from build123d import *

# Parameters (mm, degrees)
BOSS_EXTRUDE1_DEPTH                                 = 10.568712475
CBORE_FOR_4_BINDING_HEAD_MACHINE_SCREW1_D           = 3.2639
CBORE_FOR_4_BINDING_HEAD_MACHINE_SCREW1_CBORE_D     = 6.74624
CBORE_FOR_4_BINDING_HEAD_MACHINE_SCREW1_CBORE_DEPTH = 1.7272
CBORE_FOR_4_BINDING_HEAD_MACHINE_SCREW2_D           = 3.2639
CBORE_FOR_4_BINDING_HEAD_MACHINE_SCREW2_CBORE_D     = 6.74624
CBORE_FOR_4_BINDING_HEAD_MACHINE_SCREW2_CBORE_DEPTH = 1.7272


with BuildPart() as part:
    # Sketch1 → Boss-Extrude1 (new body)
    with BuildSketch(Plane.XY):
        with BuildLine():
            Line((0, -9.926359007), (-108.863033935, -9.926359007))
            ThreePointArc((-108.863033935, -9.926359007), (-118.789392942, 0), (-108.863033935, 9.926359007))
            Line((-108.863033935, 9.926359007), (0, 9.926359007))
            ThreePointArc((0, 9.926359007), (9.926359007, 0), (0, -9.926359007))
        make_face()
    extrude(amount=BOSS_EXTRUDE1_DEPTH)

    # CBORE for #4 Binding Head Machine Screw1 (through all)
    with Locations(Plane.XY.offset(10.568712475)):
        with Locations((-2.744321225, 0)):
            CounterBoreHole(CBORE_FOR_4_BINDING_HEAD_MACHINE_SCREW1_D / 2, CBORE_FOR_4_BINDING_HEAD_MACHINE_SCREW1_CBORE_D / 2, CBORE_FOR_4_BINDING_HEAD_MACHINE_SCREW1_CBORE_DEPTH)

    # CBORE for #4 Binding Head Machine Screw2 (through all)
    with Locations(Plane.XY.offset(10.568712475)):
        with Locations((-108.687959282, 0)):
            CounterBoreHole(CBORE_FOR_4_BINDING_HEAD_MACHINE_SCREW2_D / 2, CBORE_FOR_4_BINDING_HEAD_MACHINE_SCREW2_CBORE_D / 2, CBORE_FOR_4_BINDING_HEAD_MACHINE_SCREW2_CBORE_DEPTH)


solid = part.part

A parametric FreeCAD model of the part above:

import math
import FreeCAD as App
import Part
import Sketcher
Q = App.Units.Quantity

doc = App.newDocument("Part")
body = doc.addObject("PartDesign::Body", "Body")

# Sketch on XY plane
sketch1 = body.newObject("Sketcher::SketchObject", "Sketch")
sketch1.AttachmentSupport = (doc.getObject("XY_Plane"), [""])
sketch1.MapMode = "FlatFace"
sketch1.addGeometry(Part.LineSegment(App.Vector(-108.863034, -9.926359, 0), App.Vector(0, -9.926359, 0)), False)
sketch1.addGeometry(Part.ArcOfCircle(Part.Circle(App.Vector(0, 0, 0), App.Vector(0, 0, 1), 9.926359), math.radians(-90), math.radians(90)), False)
sketch1.addGeometry(Part.LineSegment(App.Vector(0, 9.926359, 0), App.Vector(-108.863034, 9.926359, 0)), False)
sketch1.addGeometry(Part.ArcOfCircle(Part.Circle(App.Vector(-108.863034, 0, 0), App.Vector(0, 0, 1), 9.926359), math.radians(90), math.radians(270)), False)
sketch1.addConstraint(Sketcher.Constraint("Tangent", 0, 2, 1, 1))
sketch1.addConstraint(Sketcher.Constraint("Tangent", 1, 2, 2, 1))
sketch1.addConstraint(Sketcher.Constraint("Tangent", 2, 2, 3, 1))
sketch1.addConstraint(Sketcher.Constraint("Tangent", 3, 2, 0, 1))
sketch1.addConstraint(Sketcher.Constraint("Horizontal", 0))
sketch1.addConstraint(Sketcher.Constraint("Horizontal", 2))
sketch1.addConstraint(Sketcher.Constraint("Coincident", 1, 3, -1, 1))
sketch1.addConstraint(Sketcher.Constraint("Radius", 1, Q("9.926359 mm")))
sketch1.addConstraint(Sketcher.Constraint("DistanceX", 0, 1, 0, 2, Q("108.863034 mm")))
pad1 = body.newObject("PartDesign::Pad", "Pad")
pad1.Profile = sketch1
pad1.Length = 10.568712

# Sketch on XY plane
sketch2 = body.newObject("Sketcher::SketchObject", "Sketch001")
sketch2.AttachmentSupport = (doc.getObject("XY_Plane"), [""])
sketch2.MapMode = "FlatFace"
sketch2.AttachmentOffset = App.Placement(App.Vector(0, 0, 10.568712), App.Rotation())
sketch2.addGeometry(Part.Circle(App.Vector(-2.744321, 0, 0), App.Vector(0, 0, 1), 1.63195), False)
sketch2.addConstraint(Sketcher.Constraint("PointOnObject", 0, 3, -1))
sketch2.addConstraint(Sketcher.Constraint("Diameter", 0, Q("3.2639 mm")))
sketch2.addConstraint(Sketcher.Constraint("DistanceX", 0, 3, -1, 1, Q("2.744321 mm")))
doc.recompute()
hole = body.newObject("PartDesign::Hole", "Hole")
hole.Profile = sketch2
hole.ThreadType = "None"
hole.Diameter = 3.2639
hole.DepthType = "ThroughAll"
hole.HoleCutType = "Counterbore"
hole.HoleCutDiameter = 6.74624
hole.HoleCutDepth = 1.7272

# Sketch on XY plane
sketch3 = body.newObject("Sketcher::SketchObject", "Sketch002")
sketch3.AttachmentSupport = (doc.getObject("XY_Plane"), [""])
sketch3.MapMode = "FlatFace"
sketch3.AttachmentOffset = App.Placement(App.Vector(0, 0, 10.568712), App.Rotation())
sketch3.addGeometry(Part.Circle(App.Vector(-108.687959, 0, 0), App.Vector(0, 0, 1), 1.63195), False)
sketch3.addConstraint(Sketcher.Constraint("PointOnObject", 0, 3, -1))
sketch3.addConstraint(Sketcher.Constraint("Diameter", 0, Q("3.2639 mm")))
sketch3.addConstraint(Sketcher.Constraint("DistanceX", 0, 3, -1, 1, Q("108.687959 mm")))
doc.recompute()
hole2 = body.newObject("PartDesign::Hole", "Hole001")
hole2.Profile = sketch3
hole2.ThreadType = "None"
hole2.Diameter = 3.2639
hole2.DepthType = "ThroughAll"
hole2.HoleCutType = "Counterbore"
hole2.HoleCutDiameter = 6.74624
hole2.HoleCutDepth = 1.7272

doc.recompute()
